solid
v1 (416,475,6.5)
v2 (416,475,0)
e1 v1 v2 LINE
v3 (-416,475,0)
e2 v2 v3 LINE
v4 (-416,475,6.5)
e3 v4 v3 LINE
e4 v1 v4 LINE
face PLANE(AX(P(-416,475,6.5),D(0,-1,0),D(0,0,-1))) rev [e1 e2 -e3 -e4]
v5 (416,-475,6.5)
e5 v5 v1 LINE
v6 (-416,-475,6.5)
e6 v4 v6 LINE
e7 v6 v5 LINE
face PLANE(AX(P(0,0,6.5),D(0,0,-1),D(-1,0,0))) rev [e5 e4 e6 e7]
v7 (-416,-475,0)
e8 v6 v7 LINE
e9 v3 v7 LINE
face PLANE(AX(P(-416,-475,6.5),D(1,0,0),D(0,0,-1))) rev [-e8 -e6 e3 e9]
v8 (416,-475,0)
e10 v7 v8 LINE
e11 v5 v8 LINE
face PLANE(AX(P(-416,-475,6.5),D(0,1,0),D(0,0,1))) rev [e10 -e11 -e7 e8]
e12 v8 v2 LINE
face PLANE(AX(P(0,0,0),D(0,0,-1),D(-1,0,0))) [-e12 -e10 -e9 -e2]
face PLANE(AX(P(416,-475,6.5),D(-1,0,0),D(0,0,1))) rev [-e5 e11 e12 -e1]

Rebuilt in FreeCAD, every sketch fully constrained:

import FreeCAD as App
import Part
import Sketcher
from FreeCAD import Vector


def add_polygon(sketch, points):
    """Adds a closed chain of lines whose ends are joined by coincident constraints."""
    first, n = sketch.GeometryCount, len(points)
    for a, b in zip(points, points[1:] + points[:1]):
        sketch.addGeometry(Part.LineSegment(App.Vector(*a, 0), App.Vector(*b, 0)), False)
    for i in range(n):
        sketch.addConstraint(Sketcher.Constraint("Coincident", first + i, 2, first + (i + 1) % n, 1))

doc = App.newDocument("Part")
params = doc.addObject("Spreadsheet::Sheet", "Params")
for row, (alias, value) in enumerate([
    ("sketch1_width", "832 mm"),
    ("sketch1_height", "950 mm"),
    ("pad1_length", "6.5 mm"),
], start=1):
    params.set(f"A{row}", alias)
    params.set(f"B{row}", "=" + value)
    params.setAlias(f"B{row}", alias)

body = doc.addObject("PartDesign::Body", "Body")

# Sketch on XY plane
sketch1 = body.newObject("Sketcher::SketchObject", "Sketch")
sketch1.AttachmentSupport = (doc.getObject("XY_Plane"), [""])
sketch1.MapMode = "FlatFace"
add_polygon(sketch1, [(-416, 475), (-416, -475), (416, -475), (416, 475)])  # lines 0-3
sketch1.addConstraint(Sketcher.Constraint("Vertical", 0))
sketch1.addConstraint(Sketcher.Constraint("Horizontal", 1))
sketch1.addConstraint(Sketcher.Constraint("Vertical", 2))
sketch1.addConstraint(Sketcher.Constraint("Horizontal", 3))
sketch1.addConstraint(Sketcher.Constraint("Symmetric", 0, 2, 2, 2, -1, 1))
sketch1.addConstraint(Sketcher.Constraint("DistanceX", 1, 1, 1, 2, 832.0))
sketch1.addConstraint(Sketcher.Constraint("DistanceY", 0, 2, 0, 1, 950.0))
sketch1.setExpression("Constraints[9]", "Params.sketch1_width")
sketch1.setExpression("Constraints[10]", "Params.sketch1_height")
pad1 = body.newObject("PartDesign::Pad", "Pad")
pad1.Profile = sketch1
pad1.setExpression("Length", "Params.pad1_length")

doc.recompute()
